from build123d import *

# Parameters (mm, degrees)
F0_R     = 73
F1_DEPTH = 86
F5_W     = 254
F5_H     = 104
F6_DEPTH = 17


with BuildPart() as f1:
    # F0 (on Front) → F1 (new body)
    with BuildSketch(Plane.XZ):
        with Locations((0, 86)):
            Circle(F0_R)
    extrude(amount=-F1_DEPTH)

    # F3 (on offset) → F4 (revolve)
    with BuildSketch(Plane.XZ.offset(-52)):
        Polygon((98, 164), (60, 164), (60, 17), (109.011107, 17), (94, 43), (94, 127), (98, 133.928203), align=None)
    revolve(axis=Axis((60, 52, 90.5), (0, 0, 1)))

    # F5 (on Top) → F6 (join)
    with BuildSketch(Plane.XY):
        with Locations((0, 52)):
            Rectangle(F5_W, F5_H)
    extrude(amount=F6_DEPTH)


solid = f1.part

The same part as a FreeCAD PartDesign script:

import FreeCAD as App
import Part
import Sketcher
Q = App.Units.Quantity

doc = App.newDocument("Part")
body = doc.addObject("PartDesign::Body", "Body")

# Sketch on XZ plane
sketch1 = body.newObject("Sketcher::SketchObject", "Sketch")
sketch1.AttachmentSupport = (doc.getObject("XZ_Plane"), [""])
sketch1.MapMode = "FlatFace"
sketch1.addGeometry(Part.Circle(App.Vector(0, 86, 0), App.Vector(0, 0, 1), 73), False)
sketch1.addConstraint([
    Sketcher.Constraint("PointOnObject", 0, 3, -2),
    Sketcher.Constraint("Diameter", 0, Q("146 mm")),
    Sketcher.Constraint("DistanceY", -1, 1, 0, 3, Q("86 mm")),
])
pad1 = body.newObject("PartDesign::Pad", "Pad")
pad1.Profile = sketch1
pad1.Length = 86
pad1.Reversed = True

# Sketch on XZ plane
sketch2 = body.newObject("Sketcher::SketchObject", "Sketch001")
sketch2.AttachmentSupport = (doc.getObject("XZ_Plane"), [""])
sketch2.MapMode = "FlatFace"
sketch2.AttachmentOffset = App.Placement(App.Vector(0, 0, -52), App.Rotation())
sketch2.addGeometry([
    Part.LineSegment(App.Vector(98, 164, 0), App.Vector(60, 164, 0)),  # 0
    Part.LineSegment(App.Vector(60, 164, 0), App.Vector(60, 17, 0)),  # 1
    Part.LineSegment(App.Vector(60, 17, 0), App.Vector(109, 17, 0)),  # 2
    Part.LineSegment(App.Vector(109, 17, 0), App.Vector(94, 43, 0)),  # 3
    Part.LineSegment(App.Vector(94, 43, 0), App.Vector(94, 127, 0)),  # 4
    Part.LineSegment(App.Vector(94, 127, 0), App.Vector(98, 134, 0)),  # 5
    Part.LineSegment(App.Vector(98, 134, 0), App.Vector(98, 164, 0)),  # 6
], False)
sketch2.addGeometry(Part.LineSegment(App.Vector(60, 17, 0), App.Vector(60, 164, 0)), True)  # axis
sketch2.addConstraint([
    Sketcher.Constraint("Coincident", 0, 2, 1, 1),
    Sketcher.Constraint("Coincident", 1, 2, 2, 1),
    Sketcher.Constraint("Coincident", 2, 2, 3, 1),
    Sketcher.Constraint("Coincident", 3, 2, 4, 1),
    Sketcher.Constraint("Coincident", 4, 2, 5, 1),
    Sketcher.Constraint("Coincident", 5, 2, 6, 1),
    Sketcher.Constraint("Coincident", 6, 2, 0, 1),
    Sketcher.Constraint("Horizontal", 0),
    Sketcher.Constraint("Vertical", 1),
    Sketcher.Constraint("Horizontal", 2),
    Sketcher.Constraint("Vertical", 4),
    Sketcher.Constraint("Vertical", 6),
    Sketcher.Constraint("Vertical", 7),
    Sketcher.Constraint("Coincident", 7, 1, 1, 2),
    Sketcher.Constraint("Horizontal", 6, 2, 7, 2),
    Sketcher.Constraint("DistanceX", 0, 2, 0, 1, Q("38 mm")),
    Sketcher.Constraint("DistanceY", 1, 2, 1, 1, Q("147 mm")),
    Sketcher.Constraint("DistanceY", 4, 1, 4, 2, Q("84 mm")),
    Sketcher.Constraint("Angle", 3, Q("120 deg")),
    Sketcher.Constraint("Angle", 5, Q("59.999999 deg")),
    Sketcher.Constraint("Distance", 5, Q("8 mm")),
    Sketcher.Constraint("DistanceX", -1, 1, 0, 2, Q("60 mm")),
    Sketcher.Constraint("DistanceY", -1, 1, 0, 2, Q("164 mm")),
    Sketcher.Constraint("DistanceY", -1, 1, 3, 2, Q("43 mm")),
])
revolution = body.newObject("PartDesign::Revolution", "Revolution")
revolution.Profile = sketch2
revolution.ReferenceAxis = (sketch2, ["Axis0"])
revolution.Angle = 360

# Sketch on XY plane
sketch3 = body.newObject("Sketcher::SketchObject", "Sketch002")
sketch3.AttachmentSupport = (doc.getObject("XY_Plane"), [""])
sketch3.MapMode = "FlatFace"
sketch3.addGeometry([
    Part.LineSegment(App.Vector(-127, 104, 0), App.Vector(-127, 0, 0)),
    Part.LineSegment(App.Vector(-127, 0, 0), App.Vector(127, 0, 0)),
    Part.LineSegment(App.Vector(127, 0, 0), App.Vector(127, 104, 0)),
    Part.LineSegment(App.Vector(127, 104, 0), App.Vector(-127, 104, 0)),
], False)
sketch3.addConstraint([
    Sketcher.Constraint("Coincident", 0, 2, 1, 1),
    Sketcher.Constraint("Coincident", 1, 2, 2, 1),
    Sketcher.Constraint("Coincident", 2, 2, 3, 1),
    Sketcher.Constraint("Coincident", 3, 2, 0, 1),
    Sketcher.Constraint("Vertical", 0),
    Sketcher.Constraint("Horizontal", 1),
    Sketcher.Constraint("Vertical", 2),
    Sketcher.Constraint("Horizontal", 3),
    Sketcher.Constraint("Symmetric", 0, 2, 1, 2, -1, 1),
    Sketcher.Constraint("DistanceX", 1, 1, 1, 2, Q("254 mm")),
    Sketcher.Constraint("DistanceY", 0, 2, 0, 1, Q("104 mm")),
])
pad2 = body.newObject("PartDesign::Pad", "Pad001")
pad2.Profile = sketch3
pad2.Length = 17

doc.recompute()
